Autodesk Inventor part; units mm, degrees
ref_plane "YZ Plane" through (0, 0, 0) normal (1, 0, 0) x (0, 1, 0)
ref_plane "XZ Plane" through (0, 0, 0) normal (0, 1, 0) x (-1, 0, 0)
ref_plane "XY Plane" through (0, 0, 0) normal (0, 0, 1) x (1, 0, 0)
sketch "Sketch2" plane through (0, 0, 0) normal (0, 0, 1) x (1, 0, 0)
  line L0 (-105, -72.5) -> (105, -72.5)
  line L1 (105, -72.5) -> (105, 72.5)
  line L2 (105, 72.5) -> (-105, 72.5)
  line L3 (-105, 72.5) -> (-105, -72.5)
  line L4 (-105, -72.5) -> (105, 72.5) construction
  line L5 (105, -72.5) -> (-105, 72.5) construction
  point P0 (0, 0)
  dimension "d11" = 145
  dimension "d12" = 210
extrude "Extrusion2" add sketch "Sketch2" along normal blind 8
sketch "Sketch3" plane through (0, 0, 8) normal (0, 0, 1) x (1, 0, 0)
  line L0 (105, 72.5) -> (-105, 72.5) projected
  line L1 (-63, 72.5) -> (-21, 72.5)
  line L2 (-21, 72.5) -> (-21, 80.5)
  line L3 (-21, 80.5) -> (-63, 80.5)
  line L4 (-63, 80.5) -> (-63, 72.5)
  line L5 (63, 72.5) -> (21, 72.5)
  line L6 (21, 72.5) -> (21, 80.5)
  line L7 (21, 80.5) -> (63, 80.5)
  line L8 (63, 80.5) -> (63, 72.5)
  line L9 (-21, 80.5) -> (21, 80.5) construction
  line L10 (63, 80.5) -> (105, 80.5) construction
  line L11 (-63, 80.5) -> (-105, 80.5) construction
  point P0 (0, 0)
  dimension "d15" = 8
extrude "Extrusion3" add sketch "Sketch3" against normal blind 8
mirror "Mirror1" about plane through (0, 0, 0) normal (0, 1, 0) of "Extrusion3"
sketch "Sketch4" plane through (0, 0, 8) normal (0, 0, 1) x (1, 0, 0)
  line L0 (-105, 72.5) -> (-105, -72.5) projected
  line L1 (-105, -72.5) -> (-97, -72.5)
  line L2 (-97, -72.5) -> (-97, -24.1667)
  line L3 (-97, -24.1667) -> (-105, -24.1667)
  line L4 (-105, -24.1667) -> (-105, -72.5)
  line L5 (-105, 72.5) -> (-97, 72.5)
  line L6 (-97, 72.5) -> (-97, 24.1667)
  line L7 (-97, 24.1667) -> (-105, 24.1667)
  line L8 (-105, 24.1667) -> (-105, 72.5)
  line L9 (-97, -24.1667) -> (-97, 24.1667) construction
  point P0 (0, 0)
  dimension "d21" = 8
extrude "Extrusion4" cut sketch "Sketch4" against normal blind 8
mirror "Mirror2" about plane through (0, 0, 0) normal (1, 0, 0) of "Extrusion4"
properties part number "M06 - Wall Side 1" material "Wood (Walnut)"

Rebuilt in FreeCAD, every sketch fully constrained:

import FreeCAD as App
import Part
import Sketcher


def add_polygon(sketch, points):
    """Adds a closed chain of lines whose ends are joined by coincident constraints."""
    first, n = sketch.GeometryCount, len(points)
    for a, b in zip(points, points[1:] + points[:1]):
        sketch.addGeometry(Part.LineSegment(App.Vector(*a, 0), App.Vector(*b, 0)), False)
    for i in range(n):
        sketch.addConstraint(Sketcher.Constraint("Coincident", first + i, 2, first + (i + 1) % n, 1))

doc = App.newDocument("Part")
body = doc.addObject("PartDesign::Body", "Body")

# Sketch on XY plane
sketch1 = doc.addObject("Sketcher::SketchObject", "Sketch")
body.addObject(sketch1)
sketch1.AttachmentSupport = (doc.XY_Plane, [""])
sketch1.MapMode = "FlatFace"
add_polygon(sketch1, [(-105, 72), (-105, -72), (105, -72), (105, 72)])  # lines 0-3
sketch1.addConstraint(Sketcher.Constraint("Vertical", 0))
sketch1.addConstraint(Sketcher.Constraint("Horizontal", 1))
sketch1.addConstraint(Sketcher.Constraint("Vertical", 2))
sketch1.addConstraint(Sketcher.Constraint("Horizontal", 3))
sketch1.addConstraint(Sketcher.Constraint("Symmetric", 0, 2, 2, 2, -1, 1))
sketch1.addConstraint(Sketcher.Constraint("DistanceX", 1, 1, 1, 2, 210.0))
sketch1.addConstraint(Sketcher.Constraint("DistanceY", 0, 2, 0, 1, 145.0))
pad1 = doc.addObject("PartDesign::Pad", "Pad")
body.addObject(pad1)
pad1.Profile = sketch1
pad1.Length = 8

# Sketch on XY plane
sketch2 = doc.addObject("Sketcher::SketchObject", "Sketch001")
body.addObject(sketch2)
sketch2.AttachmentSupport = (doc.XY_Plane, [""])
sketch2.MapMode = "FlatFace"
sketch2.AttachmentOffset = App.Placement(App.Vector(0, 0, 8), App.Rotation())
add_polygon(sketch2, [(-63, 72), (-21, 72), (-21, 80), (-63, 80)])  # lines 0-3
add_polygon(sketch2, [(21, 72), (63, 72), (63, 80), (21, 80)])  # lines 4-7
sketch2.addConstraint(Sketcher.Constraint("Horizontal", 0))
sketch2.addConstraint(Sketcher.Constraint("Vertical", 1))
sketch2.addConstraint(Sketcher.Constraint("Horizontal", 2))
sketch2.addConstraint(Sketcher.Constraint("Vertical", 3))
sketch2.addConstraint(Sketcher.Constraint("Horizontal", 4))
sketch2.addConstraint(Sketcher.Constraint("Vertical", 5))
sketch2.addConstraint(Sketcher.Constraint("Horizontal", 6))
sketch2.addConstraint(Sketcher.Constraint("Vertical", 7))
sketch2.addConstraint(Sketcher.Constraint("Symmetric", 3, 2, 4, 2, -2))
sketch2.addConstraint(Sketcher.Constraint("Symmetric", 1, 2, 6, 2, -2))
sketch2.addConstraint(Sketcher.Constraint("DistanceY", 1, 1, 1, 2, 8.0))
sketch2.addConstraint(Sketcher.Constraint("DistanceX", 0, 1, 0, 2, 42.0))
sketch2.addConstraint(Sketcher.Constraint("DistanceX", 0, 2, -1, 1, 21.0))
sketch2.addConstraint(Sketcher.Constraint("DistanceY", -1, 1, 0, 2, 72.5))
pad2 = doc.addObject("PartDesign::Pad", "Pad001")
body.addObject(pad2)
pad2.Profile = sketch2
pad2.Length = 8
pad2.Reversed = True
doc.recompute()

mirrored = doc.addObject("PartDesign::Mirrored", "Mirrored")
body.addObject(mirrored)
mirrored.Originals = [pad2]
mirrored.MirrorPlane = (doc.XZ_Plane, [""])
body.Tip = mirrored

# Sketch on XY plane
sketch3 = doc.addObject("Sketcher::SketchObject", "Sketch002")
body.addObject(sketch3)
sketch3.AttachmentSupport = (doc.XY_Plane, [""])
sketch3.MapMode = "FlatFace"
sketch3.AttachmentOffset = App.Placement(App.Vector(0, 0, 8), App.Rotation())
add_polygon(sketch3, [(-97, 72), (-105, 72), (-105, 24), (-97, 24)])  # lines 0-3
add_polygon(sketch3, [(-97, -24), (-105, -24), (-105, -72), (-97, -72)])  # lines 4-7
sketch3.addConstraint(Sketcher.Constraint("Horizontal", 0))
sketch3.addConstraint(Sketcher.Constraint("Vertical", 1))
sketch3.addConstraint(Sketcher.Constraint("Horizontal", 2))
sketch3.addConstraint(Sketcher.Constraint("Vertical", 3))
sketch3.addConstraint(Sketcher.Constraint("Horizontal", 4))
sketch3.addConstraint(Sketcher.Constraint("Vertical", 5))
sketch3.addConstraint(Sketcher.Constraint("Horizontal", 6))
sketch3.addConstraint(Sketcher.Constraint("Vertical", 7))
sketch3.addConstraint(Sketcher.Constraint("Symmetric", 1, 2, 4, 2, -1))
sketch3.addConstraint(Sketcher.Constraint("Symmetric", 3, 2, 6, 2, -1))
sketch3.addConstraint(Sketcher.Constraint("DistanceX", 0, 2, 0, 1, 8.0))
sketch3.addConstraint(Sketcher.Constraint("DistanceX", 0, 2, -1, 1, 105.0))
sketch3.addConstraint(Sketcher.Constraint("DistanceY", 5, 2, 0, 2, 145.0))
sketch3.addConstraint(Sketcher.Constraint("DistanceY", 1, 2, 1, 1, 48.3333))
pocket1 = doc.addObject("PartDesign::Pocket", "Pocket")
body.addObject(pocket1)
pocket1.Profile = sketch3
pocket1.Length = 8
doc.recompute()

mirrored2 = doc.addObject("PartDesign::Mirrored", "Mirrored001")
body.addObject(mirrored2)
mirrored2.Originals = [pocket1]
mirrored2.MirrorPlane = (doc.YZ_Plane, [""])
body.Tip = mirrored2

doc.recompute()
